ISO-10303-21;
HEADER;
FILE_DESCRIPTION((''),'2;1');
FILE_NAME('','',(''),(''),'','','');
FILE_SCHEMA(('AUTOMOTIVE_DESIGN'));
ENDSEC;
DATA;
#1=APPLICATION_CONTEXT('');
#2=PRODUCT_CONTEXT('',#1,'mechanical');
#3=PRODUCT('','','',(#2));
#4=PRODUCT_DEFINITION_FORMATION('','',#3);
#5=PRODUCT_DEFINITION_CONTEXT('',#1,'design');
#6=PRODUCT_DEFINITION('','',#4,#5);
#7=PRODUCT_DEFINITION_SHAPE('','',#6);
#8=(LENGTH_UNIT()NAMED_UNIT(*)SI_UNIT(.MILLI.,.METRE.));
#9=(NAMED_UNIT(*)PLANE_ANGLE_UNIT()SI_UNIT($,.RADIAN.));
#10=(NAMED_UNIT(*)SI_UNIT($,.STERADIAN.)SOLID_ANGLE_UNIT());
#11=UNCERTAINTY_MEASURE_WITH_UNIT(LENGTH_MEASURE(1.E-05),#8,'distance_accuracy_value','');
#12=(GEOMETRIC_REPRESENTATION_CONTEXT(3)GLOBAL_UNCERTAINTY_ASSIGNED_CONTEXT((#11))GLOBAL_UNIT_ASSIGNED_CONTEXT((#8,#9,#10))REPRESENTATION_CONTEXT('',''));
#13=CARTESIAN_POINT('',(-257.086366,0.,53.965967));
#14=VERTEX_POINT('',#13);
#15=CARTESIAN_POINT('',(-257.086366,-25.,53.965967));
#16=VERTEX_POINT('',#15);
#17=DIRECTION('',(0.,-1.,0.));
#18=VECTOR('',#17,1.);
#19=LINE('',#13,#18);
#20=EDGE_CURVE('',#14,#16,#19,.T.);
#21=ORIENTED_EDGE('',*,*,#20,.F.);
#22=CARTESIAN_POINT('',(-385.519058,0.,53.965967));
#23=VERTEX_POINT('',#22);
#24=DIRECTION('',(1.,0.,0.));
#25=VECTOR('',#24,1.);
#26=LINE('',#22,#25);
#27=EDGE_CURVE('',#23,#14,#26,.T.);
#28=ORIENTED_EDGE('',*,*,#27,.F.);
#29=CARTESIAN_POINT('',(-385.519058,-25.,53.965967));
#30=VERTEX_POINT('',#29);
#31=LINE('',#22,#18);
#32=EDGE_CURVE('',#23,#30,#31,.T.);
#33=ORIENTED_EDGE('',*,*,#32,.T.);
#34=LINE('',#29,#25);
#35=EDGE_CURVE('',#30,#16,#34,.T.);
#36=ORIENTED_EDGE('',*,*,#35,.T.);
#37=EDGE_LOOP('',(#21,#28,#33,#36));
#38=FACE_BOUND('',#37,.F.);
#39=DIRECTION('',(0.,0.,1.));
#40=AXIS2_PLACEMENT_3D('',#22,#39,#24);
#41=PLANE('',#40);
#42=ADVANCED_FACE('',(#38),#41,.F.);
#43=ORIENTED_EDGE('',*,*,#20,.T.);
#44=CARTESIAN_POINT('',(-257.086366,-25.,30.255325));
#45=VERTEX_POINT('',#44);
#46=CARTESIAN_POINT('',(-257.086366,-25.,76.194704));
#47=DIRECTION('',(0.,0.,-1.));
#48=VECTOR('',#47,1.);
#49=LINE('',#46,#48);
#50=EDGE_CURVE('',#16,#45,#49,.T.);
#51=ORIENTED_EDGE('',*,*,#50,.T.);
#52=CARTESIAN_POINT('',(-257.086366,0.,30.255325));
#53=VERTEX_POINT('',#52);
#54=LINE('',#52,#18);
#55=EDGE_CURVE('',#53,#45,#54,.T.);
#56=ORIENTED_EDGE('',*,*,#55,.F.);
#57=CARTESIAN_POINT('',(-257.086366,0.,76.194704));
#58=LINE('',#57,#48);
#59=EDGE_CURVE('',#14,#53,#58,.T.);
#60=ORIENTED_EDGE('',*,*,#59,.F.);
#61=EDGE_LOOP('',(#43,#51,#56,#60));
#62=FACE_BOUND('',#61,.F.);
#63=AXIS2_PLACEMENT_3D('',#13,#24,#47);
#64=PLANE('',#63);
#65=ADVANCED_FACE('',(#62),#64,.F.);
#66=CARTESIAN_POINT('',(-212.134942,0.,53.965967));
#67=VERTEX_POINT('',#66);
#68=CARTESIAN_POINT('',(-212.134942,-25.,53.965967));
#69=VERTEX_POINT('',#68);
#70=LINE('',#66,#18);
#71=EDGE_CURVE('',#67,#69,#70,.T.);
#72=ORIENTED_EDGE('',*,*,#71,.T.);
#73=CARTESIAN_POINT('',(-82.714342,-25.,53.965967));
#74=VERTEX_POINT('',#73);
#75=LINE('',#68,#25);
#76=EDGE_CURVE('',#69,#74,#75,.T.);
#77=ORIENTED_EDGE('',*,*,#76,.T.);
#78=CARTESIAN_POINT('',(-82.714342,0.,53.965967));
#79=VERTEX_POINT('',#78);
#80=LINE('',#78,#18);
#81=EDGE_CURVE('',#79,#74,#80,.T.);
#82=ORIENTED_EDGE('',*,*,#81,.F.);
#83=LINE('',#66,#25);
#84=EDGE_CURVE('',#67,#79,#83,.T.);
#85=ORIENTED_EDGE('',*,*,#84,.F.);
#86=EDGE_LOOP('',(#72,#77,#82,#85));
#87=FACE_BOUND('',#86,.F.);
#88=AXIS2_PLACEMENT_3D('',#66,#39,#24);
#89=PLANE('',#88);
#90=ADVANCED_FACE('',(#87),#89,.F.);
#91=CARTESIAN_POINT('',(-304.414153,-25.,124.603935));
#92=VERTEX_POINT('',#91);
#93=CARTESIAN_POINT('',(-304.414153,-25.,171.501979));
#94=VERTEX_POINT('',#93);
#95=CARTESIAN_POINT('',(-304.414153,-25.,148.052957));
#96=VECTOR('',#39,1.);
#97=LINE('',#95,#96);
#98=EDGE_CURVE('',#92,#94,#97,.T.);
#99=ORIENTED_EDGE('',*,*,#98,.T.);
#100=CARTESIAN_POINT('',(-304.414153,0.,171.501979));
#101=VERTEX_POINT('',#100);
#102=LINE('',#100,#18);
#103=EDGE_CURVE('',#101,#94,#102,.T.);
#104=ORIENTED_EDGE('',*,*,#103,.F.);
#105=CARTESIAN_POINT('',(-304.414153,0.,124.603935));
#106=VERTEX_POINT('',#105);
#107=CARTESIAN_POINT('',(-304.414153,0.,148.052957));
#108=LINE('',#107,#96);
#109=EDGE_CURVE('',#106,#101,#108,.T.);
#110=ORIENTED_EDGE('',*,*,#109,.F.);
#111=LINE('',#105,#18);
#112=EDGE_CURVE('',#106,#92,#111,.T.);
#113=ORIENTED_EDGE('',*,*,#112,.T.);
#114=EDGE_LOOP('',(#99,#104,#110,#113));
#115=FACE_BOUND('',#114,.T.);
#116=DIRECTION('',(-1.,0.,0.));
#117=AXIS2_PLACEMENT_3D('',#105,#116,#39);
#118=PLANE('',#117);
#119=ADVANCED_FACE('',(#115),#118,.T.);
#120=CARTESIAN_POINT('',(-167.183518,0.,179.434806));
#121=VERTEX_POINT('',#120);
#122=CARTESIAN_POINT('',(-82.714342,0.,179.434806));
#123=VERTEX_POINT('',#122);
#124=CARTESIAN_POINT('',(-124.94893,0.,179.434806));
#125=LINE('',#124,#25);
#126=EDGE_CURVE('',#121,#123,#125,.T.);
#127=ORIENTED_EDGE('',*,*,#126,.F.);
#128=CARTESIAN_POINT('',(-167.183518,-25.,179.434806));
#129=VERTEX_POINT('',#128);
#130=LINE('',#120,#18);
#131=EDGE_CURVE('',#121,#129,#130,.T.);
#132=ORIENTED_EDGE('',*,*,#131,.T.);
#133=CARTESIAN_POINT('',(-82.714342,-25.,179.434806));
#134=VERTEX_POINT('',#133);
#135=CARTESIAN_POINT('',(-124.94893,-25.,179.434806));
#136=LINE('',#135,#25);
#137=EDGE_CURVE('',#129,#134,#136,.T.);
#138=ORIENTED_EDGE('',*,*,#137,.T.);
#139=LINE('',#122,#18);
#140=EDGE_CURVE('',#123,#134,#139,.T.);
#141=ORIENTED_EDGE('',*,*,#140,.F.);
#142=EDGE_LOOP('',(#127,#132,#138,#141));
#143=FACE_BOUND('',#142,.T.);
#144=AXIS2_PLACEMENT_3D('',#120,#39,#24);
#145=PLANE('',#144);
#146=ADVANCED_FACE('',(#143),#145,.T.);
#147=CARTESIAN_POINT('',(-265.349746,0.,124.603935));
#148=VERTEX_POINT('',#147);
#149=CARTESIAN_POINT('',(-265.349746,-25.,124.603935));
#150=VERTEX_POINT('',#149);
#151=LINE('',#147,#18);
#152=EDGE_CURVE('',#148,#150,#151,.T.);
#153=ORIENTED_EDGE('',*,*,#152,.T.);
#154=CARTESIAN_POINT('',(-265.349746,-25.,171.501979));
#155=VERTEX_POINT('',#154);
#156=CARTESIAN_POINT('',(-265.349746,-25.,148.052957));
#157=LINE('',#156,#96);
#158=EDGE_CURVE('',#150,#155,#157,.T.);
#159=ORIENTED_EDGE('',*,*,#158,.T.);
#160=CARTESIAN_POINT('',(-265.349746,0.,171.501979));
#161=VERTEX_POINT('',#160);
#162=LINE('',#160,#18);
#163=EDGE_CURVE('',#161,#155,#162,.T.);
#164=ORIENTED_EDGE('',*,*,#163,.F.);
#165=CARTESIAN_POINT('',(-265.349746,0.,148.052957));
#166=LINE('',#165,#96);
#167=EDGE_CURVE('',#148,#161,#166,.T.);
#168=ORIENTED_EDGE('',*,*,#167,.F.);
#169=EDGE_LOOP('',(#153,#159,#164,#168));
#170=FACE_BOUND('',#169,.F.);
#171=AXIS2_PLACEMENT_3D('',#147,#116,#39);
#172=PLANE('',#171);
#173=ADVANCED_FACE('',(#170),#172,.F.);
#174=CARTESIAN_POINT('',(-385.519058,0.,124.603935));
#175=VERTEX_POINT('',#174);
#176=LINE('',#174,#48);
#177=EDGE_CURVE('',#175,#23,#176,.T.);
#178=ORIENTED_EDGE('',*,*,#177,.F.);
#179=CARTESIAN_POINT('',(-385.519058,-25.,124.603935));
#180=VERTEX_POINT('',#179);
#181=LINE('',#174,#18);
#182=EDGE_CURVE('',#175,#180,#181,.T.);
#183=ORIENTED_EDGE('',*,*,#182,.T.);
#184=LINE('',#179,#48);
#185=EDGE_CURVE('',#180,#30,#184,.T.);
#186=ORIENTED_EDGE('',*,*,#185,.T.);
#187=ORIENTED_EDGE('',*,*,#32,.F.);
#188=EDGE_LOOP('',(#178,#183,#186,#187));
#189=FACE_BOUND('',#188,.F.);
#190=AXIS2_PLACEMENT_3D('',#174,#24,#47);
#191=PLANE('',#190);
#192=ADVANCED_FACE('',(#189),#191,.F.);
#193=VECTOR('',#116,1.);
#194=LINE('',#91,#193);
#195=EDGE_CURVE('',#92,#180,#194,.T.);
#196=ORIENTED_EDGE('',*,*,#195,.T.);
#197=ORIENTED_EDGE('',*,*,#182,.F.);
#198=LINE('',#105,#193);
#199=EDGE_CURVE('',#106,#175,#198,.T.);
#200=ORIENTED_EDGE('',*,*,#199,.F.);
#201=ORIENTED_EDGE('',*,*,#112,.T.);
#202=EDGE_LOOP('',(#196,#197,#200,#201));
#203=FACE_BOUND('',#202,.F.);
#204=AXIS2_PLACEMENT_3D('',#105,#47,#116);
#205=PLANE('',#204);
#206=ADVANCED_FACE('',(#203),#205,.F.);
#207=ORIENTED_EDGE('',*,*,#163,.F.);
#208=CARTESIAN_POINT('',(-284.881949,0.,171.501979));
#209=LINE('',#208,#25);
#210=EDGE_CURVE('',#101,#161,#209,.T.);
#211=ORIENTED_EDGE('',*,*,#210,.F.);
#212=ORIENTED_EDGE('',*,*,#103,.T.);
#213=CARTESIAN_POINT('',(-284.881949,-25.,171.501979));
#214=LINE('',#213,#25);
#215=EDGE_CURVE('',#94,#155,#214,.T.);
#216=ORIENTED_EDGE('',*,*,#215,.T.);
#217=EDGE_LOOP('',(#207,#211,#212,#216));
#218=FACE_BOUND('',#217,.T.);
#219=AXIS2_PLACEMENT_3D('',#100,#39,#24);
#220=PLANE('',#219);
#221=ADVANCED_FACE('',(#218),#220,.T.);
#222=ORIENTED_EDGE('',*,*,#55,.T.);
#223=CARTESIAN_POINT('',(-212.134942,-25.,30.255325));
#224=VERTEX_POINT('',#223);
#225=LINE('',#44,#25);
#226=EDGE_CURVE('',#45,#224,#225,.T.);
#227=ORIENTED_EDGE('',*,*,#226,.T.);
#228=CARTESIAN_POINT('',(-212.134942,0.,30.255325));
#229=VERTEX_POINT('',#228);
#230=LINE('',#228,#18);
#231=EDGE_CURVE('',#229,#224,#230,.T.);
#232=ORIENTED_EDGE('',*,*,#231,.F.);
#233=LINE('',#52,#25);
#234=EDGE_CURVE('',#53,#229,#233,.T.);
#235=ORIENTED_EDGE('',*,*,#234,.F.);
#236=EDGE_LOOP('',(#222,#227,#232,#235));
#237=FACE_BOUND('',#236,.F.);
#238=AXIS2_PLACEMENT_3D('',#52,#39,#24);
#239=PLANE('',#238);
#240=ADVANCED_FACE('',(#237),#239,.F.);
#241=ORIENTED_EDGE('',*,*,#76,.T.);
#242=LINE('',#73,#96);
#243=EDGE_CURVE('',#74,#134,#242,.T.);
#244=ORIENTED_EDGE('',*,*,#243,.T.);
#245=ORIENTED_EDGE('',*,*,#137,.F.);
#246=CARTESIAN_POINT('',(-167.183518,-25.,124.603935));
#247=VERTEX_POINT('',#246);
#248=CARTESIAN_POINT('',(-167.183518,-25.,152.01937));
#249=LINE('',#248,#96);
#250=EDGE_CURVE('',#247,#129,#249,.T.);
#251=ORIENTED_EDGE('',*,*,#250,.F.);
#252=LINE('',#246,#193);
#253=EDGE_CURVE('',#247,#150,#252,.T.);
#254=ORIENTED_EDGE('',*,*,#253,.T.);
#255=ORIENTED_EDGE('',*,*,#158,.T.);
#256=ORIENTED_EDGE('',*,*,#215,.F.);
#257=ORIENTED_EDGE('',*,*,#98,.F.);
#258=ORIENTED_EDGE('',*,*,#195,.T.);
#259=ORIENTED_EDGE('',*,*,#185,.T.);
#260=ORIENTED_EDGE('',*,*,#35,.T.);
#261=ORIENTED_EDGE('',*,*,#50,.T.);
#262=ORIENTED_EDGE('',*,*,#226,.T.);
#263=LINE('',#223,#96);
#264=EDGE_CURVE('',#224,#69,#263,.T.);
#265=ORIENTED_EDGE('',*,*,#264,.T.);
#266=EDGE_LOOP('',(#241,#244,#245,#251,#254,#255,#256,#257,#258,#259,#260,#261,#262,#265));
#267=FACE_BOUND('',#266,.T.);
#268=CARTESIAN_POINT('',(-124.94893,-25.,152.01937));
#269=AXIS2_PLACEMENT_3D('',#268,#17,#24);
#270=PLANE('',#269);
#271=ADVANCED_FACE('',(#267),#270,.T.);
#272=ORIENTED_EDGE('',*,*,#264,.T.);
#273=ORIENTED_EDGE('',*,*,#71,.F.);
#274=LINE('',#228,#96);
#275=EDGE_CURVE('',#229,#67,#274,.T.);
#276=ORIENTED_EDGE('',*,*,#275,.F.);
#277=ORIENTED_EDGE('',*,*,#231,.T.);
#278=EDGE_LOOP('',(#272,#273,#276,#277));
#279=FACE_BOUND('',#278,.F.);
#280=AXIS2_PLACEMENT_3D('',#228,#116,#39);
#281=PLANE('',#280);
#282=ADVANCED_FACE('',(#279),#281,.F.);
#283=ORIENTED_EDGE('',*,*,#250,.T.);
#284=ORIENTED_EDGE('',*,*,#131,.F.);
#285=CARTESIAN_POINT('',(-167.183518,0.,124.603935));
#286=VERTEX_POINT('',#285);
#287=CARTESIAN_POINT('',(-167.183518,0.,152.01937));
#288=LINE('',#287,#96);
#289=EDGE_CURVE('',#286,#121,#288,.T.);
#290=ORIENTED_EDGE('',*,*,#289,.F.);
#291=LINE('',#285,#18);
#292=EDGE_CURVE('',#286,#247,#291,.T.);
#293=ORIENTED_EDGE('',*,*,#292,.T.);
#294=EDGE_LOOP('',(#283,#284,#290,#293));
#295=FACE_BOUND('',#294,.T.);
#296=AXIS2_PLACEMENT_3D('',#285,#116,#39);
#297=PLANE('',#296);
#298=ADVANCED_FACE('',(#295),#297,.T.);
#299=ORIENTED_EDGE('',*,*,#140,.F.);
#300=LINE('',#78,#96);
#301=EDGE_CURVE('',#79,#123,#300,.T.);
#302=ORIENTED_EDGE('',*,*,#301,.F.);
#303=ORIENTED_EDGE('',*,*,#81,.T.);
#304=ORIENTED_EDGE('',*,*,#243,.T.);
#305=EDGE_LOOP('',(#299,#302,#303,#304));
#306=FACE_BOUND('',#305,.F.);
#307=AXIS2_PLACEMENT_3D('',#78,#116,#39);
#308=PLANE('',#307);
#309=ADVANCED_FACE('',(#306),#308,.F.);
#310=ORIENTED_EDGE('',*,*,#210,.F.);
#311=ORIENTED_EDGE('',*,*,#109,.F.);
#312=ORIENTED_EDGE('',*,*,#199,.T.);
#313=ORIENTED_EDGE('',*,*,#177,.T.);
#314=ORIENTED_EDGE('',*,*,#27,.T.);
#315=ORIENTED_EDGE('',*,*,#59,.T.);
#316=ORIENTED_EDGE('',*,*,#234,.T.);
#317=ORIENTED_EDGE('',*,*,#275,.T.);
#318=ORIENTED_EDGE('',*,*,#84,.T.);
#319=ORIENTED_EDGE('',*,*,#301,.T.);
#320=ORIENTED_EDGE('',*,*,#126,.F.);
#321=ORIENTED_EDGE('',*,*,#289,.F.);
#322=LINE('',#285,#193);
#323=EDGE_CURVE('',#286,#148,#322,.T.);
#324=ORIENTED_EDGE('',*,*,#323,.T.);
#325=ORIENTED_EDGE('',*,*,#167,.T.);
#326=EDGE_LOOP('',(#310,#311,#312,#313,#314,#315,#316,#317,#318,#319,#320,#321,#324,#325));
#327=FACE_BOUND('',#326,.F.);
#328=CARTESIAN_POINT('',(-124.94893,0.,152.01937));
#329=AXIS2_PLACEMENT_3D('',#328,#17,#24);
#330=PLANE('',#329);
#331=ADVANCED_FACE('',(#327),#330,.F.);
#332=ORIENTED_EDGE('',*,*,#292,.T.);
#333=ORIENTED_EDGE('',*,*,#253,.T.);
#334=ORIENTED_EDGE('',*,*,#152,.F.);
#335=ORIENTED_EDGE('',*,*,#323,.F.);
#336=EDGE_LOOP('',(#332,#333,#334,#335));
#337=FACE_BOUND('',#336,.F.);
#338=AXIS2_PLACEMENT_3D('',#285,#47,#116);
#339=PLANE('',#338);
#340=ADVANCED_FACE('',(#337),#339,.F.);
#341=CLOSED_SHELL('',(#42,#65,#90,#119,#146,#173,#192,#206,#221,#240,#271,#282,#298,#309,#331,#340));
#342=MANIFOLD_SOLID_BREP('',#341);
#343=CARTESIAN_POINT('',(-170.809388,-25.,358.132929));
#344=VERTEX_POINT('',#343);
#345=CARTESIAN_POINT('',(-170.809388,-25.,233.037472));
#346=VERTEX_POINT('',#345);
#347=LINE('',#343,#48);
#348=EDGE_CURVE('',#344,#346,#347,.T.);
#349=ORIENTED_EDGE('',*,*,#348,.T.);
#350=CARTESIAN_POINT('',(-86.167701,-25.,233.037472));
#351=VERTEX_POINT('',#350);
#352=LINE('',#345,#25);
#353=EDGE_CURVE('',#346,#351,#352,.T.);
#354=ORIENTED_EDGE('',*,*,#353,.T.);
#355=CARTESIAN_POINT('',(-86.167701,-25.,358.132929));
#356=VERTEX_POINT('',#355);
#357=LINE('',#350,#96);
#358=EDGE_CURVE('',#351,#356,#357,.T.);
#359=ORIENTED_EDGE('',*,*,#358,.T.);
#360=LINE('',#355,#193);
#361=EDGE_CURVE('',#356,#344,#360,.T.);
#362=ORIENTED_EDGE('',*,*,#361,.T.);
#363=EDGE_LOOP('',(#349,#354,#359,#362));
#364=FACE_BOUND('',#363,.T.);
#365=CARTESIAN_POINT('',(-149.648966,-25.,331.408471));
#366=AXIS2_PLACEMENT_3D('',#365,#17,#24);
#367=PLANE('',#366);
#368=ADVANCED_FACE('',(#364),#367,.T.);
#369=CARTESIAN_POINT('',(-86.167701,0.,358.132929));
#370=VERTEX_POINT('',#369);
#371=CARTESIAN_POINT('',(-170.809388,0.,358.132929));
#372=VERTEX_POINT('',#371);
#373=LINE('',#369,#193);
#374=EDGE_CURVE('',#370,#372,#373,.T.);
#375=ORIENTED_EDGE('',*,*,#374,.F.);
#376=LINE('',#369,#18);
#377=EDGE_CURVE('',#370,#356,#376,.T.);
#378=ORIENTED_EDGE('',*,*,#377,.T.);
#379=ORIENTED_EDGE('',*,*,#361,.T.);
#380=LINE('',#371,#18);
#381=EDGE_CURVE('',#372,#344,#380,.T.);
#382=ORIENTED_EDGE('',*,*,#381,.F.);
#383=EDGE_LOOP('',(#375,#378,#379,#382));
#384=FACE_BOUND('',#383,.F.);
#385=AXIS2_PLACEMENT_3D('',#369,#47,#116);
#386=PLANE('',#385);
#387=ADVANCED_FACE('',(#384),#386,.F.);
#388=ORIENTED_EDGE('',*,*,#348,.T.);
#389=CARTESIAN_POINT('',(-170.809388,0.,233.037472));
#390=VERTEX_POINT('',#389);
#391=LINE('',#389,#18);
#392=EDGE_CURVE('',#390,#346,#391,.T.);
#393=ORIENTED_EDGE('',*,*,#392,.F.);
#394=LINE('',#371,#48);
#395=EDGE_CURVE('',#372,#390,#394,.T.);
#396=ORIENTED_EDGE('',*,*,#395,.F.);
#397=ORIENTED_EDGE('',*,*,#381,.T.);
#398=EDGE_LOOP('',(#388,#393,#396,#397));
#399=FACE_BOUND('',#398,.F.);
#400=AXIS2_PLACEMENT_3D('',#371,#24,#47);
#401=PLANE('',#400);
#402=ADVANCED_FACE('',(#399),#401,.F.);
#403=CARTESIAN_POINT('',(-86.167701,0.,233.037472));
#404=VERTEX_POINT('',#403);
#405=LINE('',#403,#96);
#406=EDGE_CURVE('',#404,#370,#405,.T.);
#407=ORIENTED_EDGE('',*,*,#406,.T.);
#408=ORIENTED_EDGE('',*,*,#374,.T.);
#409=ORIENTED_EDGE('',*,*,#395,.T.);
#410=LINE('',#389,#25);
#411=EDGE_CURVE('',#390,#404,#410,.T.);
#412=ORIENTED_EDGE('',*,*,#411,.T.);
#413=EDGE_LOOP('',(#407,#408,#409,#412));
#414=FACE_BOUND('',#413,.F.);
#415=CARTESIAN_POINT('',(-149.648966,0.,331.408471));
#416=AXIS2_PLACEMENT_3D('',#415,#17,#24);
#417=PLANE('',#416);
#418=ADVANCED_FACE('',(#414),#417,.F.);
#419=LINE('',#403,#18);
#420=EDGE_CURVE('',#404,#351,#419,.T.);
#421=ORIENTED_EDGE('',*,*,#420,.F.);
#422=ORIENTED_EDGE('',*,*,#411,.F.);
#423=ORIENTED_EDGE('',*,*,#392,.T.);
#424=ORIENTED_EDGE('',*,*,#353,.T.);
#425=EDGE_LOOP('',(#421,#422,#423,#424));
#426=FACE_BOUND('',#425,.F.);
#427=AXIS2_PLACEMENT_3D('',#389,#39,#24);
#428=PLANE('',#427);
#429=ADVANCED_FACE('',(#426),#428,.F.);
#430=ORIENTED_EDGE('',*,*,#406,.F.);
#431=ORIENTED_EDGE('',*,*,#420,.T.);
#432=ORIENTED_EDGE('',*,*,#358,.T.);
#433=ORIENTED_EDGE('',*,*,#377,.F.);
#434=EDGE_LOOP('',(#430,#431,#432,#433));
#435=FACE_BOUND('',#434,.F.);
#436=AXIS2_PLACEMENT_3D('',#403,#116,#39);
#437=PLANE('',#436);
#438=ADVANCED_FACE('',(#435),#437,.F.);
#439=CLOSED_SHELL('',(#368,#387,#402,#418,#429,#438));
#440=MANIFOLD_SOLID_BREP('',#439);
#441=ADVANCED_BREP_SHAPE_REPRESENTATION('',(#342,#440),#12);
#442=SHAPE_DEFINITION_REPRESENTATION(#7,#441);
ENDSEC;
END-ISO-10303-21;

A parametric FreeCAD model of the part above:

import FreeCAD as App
import Part
import Sketcher
from FreeCAD import Vector


def add_polygon(sketch, points):
    """Adds a closed chain of lines whose ends are joined by coincident constraints."""
    first, n = sketch.GeometryCount, len(points)
    for a, b in zip(points, points[1:] + points[:1]):
        sketch.addGeometry(Part.LineSegment(App.Vector(*a, 0), App.Vector(*b, 0)), False)
    for i in range(n):
        sketch.addConstraint(Sketcher.Constraint("Coincident", first + i, 2, first + (i + 1) % n, 1))

doc = App.newDocument("Part")
params = doc.addObject("Spreadsheet::Sheet", "Params")
for row, (alias, value) in enumerate([
    ("pad1_length", "25 mm"),
    ("pad2_length", "25 mm"),
], start=1):
    params.set(f"A{row}", alias)
    params.set(f"B{row}", "=" + value)
    params.setAlias(f"B{row}", alias)

body = doc.addObject("PartDesign::Body", "Body")

# Sketch on XZ plane
sketch1 = doc.addObject("Sketcher::SketchObject", "Sketch")
body.addObject(sketch1)
sketch1.AttachmentSupport = (doc.XZ_Plane, [""])
sketch1.MapMode = "FlatFace"
add_polygon(sketch1, [(-167, 179), (-167, 125), (-265, 125), (-265, 172), (-304, 172), (-304, 125), (-386, 125), (-386, 54), (-257, 54), (-257, 30), (-212, 30), (-212, 54), (-83, 54), (-83, 179)])  # lines 0-13
sketch1.addConstraint([
    Sketcher.Constraint("Vertical", 0),
    Sketcher.Constraint("Horizontal", 1),
    Sketcher.Constraint("Vertical", 2),
    Sketcher.Constraint("Horizontal", 3),
    Sketcher.Constraint("Vertical", 4),
    Sketcher.Constraint("Horizontal", 5),
    Sketcher.Constraint("Vertical", 6),
    Sketcher.Constraint("Horizontal", 7),
    Sketcher.Constraint("Vertical", 8),
    Sketcher.Constraint("Horizontal", 9),
    Sketcher.Constraint("Vertical", 10),
    Sketcher.Constraint("Horizontal", 11),
    Sketcher.Constraint("Vertical", 12),
    Sketcher.Constraint("Horizontal", 13),
    Sketcher.Constraint("Horizontal", 1, 2, 4, 2),
    Sketcher.Constraint("Horizontal", 7, 2, 10, 2),
    Sketcher.Constraint("DistanceX", 11, 1, 11, 2, 129.420601),
    Sketcher.Constraint("DistanceX", 7, 1, 7, 2, 128.432691),
    Sketcher.Constraint("DistanceY", 0, 2, 0, 1, 54.830872),
    Sketcher.Constraint("DistanceY", 12, 1, 12, 2, 125.468839),
    Sketcher.Constraint("DistanceX", 1, 2, 1, 1, 98.166227),
    Sketcher.Constraint("DistanceX", 3, 2, 3, 1, 39.064407),
    Sketcher.Constraint("DistanceX", 5, 2, 5, 1, 81.104904),
    Sketcher.Constraint("DistanceX", 9, 1, 9, 2, 44.951424),
    Sketcher.Constraint("DistanceY", 2, 1, 2, 2, 46.898045),
    Sketcher.Constraint("DistanceY", 8, 2, 8, 1, 23.710642),
    Sketcher.Constraint("DistanceX", 0, 2, -1, 1, 167.183518),
    Sketcher.Constraint("DistanceY", -1, 1, 2, 2, 171.501979),
])
pad1 = doc.addObject("PartDesign::Pad", "Pad")
body.addObject(pad1)
pad1.Profile = sketch1
pad1.setExpression("Length", "Params.pad1_length")
body2 = doc.addObject("PartDesign::Body", "Body001")

# Sketch on XZ plane
sketch2 = doc.addObject("Sketcher::SketchObject", "Sketch001")
body2.addObject(sketch2)
sketch2.AttachmentSupport = (doc.getObject("XZ_Plane001"), [""])
sketch2.MapMode = "FlatFace"
add_polygon(sketch2, [(-171, 358), (-171, 233), (-86, 233), (-86, 358)])  # lines 0-3
sketch2.addConstraint([
    Sketcher.Constraint("Vertical", 0),
    Sketcher.Constraint("Horizontal", 1),
    Sketcher.Constraint("Vertical", 2),
    Sketcher.Constraint("Horizontal", 3),
    Sketcher.Constraint("DistanceX", 1, 2, -1, 1, 86.167701),
    Sketcher.Constraint("DistanceX", 1, 1, 1, 2, 84.641688),
    Sketcher.Constraint("DistanceY", 0, 2, 0, 1, 125.095457),
    Sketcher.Constraint("DistanceY", -1, 1, 0, 2, 233.037472),
])
pad2 = doc.addObject("PartDesign::Pad", "Pad001")
body2.addObject(pad2)
pad2.Profile = sketch2
pad2.setExpression("Length", "Params.pad2_length")

doc.recompute()
